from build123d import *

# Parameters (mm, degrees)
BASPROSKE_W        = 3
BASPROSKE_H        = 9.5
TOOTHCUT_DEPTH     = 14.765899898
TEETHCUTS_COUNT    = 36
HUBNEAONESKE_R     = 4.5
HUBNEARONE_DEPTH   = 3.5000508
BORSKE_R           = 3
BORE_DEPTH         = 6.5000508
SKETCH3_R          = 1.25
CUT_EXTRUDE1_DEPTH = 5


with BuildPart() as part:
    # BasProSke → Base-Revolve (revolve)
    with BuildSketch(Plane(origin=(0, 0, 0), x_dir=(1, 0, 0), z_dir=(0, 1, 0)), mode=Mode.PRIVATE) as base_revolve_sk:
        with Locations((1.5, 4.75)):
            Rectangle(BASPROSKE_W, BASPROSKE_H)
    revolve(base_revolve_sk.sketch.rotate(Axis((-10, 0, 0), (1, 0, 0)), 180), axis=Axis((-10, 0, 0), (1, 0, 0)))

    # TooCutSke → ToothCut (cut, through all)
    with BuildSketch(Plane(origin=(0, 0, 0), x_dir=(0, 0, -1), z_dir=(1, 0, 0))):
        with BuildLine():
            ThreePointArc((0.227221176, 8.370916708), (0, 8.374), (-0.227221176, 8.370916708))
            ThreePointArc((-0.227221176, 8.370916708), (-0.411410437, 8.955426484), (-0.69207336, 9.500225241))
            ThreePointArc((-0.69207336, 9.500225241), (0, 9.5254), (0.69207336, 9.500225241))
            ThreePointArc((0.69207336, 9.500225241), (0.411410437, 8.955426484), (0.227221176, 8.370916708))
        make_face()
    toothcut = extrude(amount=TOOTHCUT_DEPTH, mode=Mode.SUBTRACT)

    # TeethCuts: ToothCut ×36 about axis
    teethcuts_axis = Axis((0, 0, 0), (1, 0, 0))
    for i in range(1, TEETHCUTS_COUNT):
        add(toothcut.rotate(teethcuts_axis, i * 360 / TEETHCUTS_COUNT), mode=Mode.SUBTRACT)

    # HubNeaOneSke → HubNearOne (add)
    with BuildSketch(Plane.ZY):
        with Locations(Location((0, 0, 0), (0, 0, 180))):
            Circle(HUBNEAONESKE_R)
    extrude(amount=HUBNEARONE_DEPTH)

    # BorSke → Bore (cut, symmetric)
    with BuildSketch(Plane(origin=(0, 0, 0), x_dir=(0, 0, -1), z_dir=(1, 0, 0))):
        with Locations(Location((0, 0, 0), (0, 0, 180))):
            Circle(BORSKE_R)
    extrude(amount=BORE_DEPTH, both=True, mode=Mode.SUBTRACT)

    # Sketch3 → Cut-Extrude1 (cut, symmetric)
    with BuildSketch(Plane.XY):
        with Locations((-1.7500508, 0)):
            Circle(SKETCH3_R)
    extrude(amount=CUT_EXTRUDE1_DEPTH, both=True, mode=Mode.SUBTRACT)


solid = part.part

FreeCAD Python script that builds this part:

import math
import FreeCAD as App
import Part
import Sketcher
from FreeCAD import Vector
Q = App.Units.Quantity

doc = App.newDocument("Part")
params = doc.addObject("Spreadsheet::Sheet", "Params")
for row, (alias, value) in enumerate([
    ("sketch1_width", "3 mm"),
    ("sketch1_height", "9.5 mm"),
    ("revolution_angle", "360 deg"),
    ("sketch2_radius", "3.6 mm"),
    ("sketch3_diameter", "9 mm"),
    ("pad1_length", "3.500051 mm"),
    ("sketch4_diameter", "6 mm"),
    ("pocket2_length", "13.000102 mm"),
    ("sketch5_diameter", "2.5 mm"),
    ("pocket3_length", "10 mm"),
], start=1):
    params.set(f"A{row}", alias)
    params.set(f"B{row}", "=" + value)
    params.setAlias(f"B{row}", alias)

body = doc.addObject("PartDesign::Body", "Body")

# Sketch on XZ plane
sketch1 = body.newObject("Sketcher::SketchObject", "Sketch")
sketch1.AttachmentSupport = (doc.getObject("XZ_Plane"), [""])
sketch1.MapMode = "FlatFace"
sketch1.addGeometry([
    Part.LineSegment(Vector(0, -9.5, 0), Vector(0, 0, 0)),
    Part.LineSegment(Vector(0, 0, 0), Vector(3, 0, 0)),
    Part.LineSegment(Vector(3, 0, 0), Vector(3, -9.5, 0)),
    Part.LineSegment(Vector(3, -9.5, 0), Vector(0, -9.5, 0)),
], False)
sketch1.addConstraint([
    Sketcher.Constraint("Coincident", 0, 2, 1, 1),
    Sketcher.Constraint("Coincident", 1, 2, 2, 1),
    Sketcher.Constraint("Coincident", 2, 2, 3, 1),
    Sketcher.Constraint("Coincident", 3, 2, 0, 1),
    Sketcher.Constraint("Vertical", 0),
    Sketcher.Constraint("Horizontal", 1),
    Sketcher.Constraint("Vertical", 2),
    Sketcher.Constraint("Horizontal", 3),
    Sketcher.Constraint("Coincident", 0, 2, -1, 1),
    Sketcher.Constraint("DistanceX", 1, 1, 1, 2, Q("3 mm")),
    Sketcher.Constraint("DistanceY", 0, 1, 0, 2, Q("9.5 mm")),
])
sketch1.setExpression("Constraints[9]", "Params.sketch1_width")
sketch1.setExpression("Constraints[10]", "Params.sketch1_height")
revolution = body.newObject("PartDesign::Revolution", "Revolution")
revolution.Profile = sketch1
revolution.ReferenceAxis = (sketch1, ["H_Axis"])
revolution.setExpression("Angle", "Params.revolution_angle")

# Sketch on YZ plane
sketch2 = body.newObject("Sketcher::SketchObject", "Sketch001")
sketch2.AttachmentSupport = (doc.getObject("YZ_Plane"), [""])
sketch2.MapMode = "FlatFace"
sketch2.addGeometry([
    Part.ArcOfCircle(Part.Circle(Vector(0, 0, 0), Vector(0, 0, 1), 8.37), math.radians(-1.55), math.radians(1.55)),
    Part.ArcOfCircle(Part.Circle(Vector(7.59, -3.74, 0), Vector(0, 0, 1), 3.6), math.radians(57.86), math.radians(77.39)),
    Part.ArcOfCircle(Part.Circle(Vector(0, 0, 0), Vector(0, 0, 1), 9.53), math.radians(-4.17), math.radians(4.17)),
    Part.ArcOfCircle(Part.Circle(Vector(7.59, 3.74, 0), Vector(0, 0, 1), 3.6), math.radians(-77.39), math.radians(-57.86)),
], False)
sketch2.addConstraint([
    Sketcher.Constraint("Coincident", 0, 1, 1, 2),
    Sketcher.Constraint("Coincident", 1, 1, 2, 1),
    Sketcher.Constraint("Coincident", 2, 2, 3, 2),
    Sketcher.Constraint("Coincident", 3, 1, 0, 2),
    Sketcher.Constraint("Coincident", 0, 3, -1, 1),
    Sketcher.Constraint("Coincident", 2, 3, -1, 1),
    Sketcher.Constraint("Equal", 1, 3),
    Sketcher.Constraint("Symmetric", 1, 3, 3, 3, -1),
    Sketcher.Constraint("Radius", 1, Q("3.6 mm")),
    Sketcher.Constraint("Radius", 0, Q("8.373999 mm")),
    Sketcher.Constraint("Radius", 2, Q("9.5254 mm")),
    Sketcher.Constraint("DistanceX", 1, 3, 1, 1, Q("1.915102 mm")),
    Sketcher.Constraint("DistanceY", 0, 1, -1, 1, Q("0.227221 mm")),
])
sketch2.setExpression("Constraints[8]", "Params.sketch2_radius")
pocket1 = body.newObject("PartDesign::Pocket", "Pocket")
pocket1.Profile = sketch2
pocket1.Type = "ThroughAll"
pocket1.Reversed = True
doc.recompute()

polarpattern = body.newObject("PartDesign::PolarPattern", "PolarPattern")
polarpattern.Originals = [pocket1]
polarpattern.Axis = (doc.getObject("X_Axis"), [""])
polarpattern.Angle = 360
polarpattern.Occurrences = 36
body.Tip = polarpattern

# Sketch on YZ plane
sketch3 = body.newObject("Sketcher::SketchObject", "Sketch002")
sketch3.AttachmentSupport = (doc.getObject("YZ_Plane"), [""])
sketch3.MapMode = "FlatFace"
sketch3.addGeometry(Part.Circle(Vector(0, 0, 0), Vector(0, 0, 1), 4.5), False)
sketch3.addConstraint([
    Sketcher.Constraint("Coincident", 0, 3, -1, 1),
    Sketcher.Constraint("Diameter", 0, Q("9 mm")),
])
sketch3.setExpression("Constraints[1]", "Params.sketch3_diameter")
pad1 = body.newObject("PartDesign::Pad", "Pad")
pad1.Profile = sketch3
pad1.setExpression("Length", "Params.pad1_length")
pad1.Reversed = True

# Sketch on YZ plane
sketch4 = body.newObject("Sketcher::SketchObject", "Sketch003")
sketch4.AttachmentSupport = (doc.getObject("YZ_Plane"), [""])
sketch4.MapMode = "FlatFace"
sketch4.addGeometry(Part.Circle(Vector(0, 0, 0), Vector(0, 0, 1), 3), False)
sketch4.addConstraint([
    Sketcher.Constraint("Coincident", 0, 3, -1, 1),
    Sketcher.Constraint("Diameter", 0, Q("6 mm")),
])
sketch4.setExpression("Constraints[1]", "Params.sketch4_diameter")
pocket2 = body.newObject("PartDesign::Pocket", "Pocket001")
pocket2.Profile = sketch4
pocket2.setExpression("Length", "Params.pocket2_length")
pocket2.Midplane = True

# Sketch on XY plane
sketch5 = body.newObject("Sketcher::SketchObject", "Sketch004")
sketch5.AttachmentSupport = (doc.getObject("XY_Plane"), [""])
sketch5.MapMode = "FlatFace"
sketch5.addGeometry(Part.Circle(Vector(-1.8, 0, 0), Vector(0, 0, 1), 1.2), False)
sketch5.addConstraint([
    Sketcher.Constraint("PointOnObject", 0, 3, -1),
    Sketcher.Constraint("Diameter", 0, Q("2.5 mm")),
    Sketcher.Constraint("DistanceX", 0, 3, -1, 1, Q("1.750051 mm")),
])
sketch5.setExpression("Constraints[1]", "Params.sketch5_diameter")
pocket3 = body.newObject("PartDesign::Pocket", "Pocket002")
pocket3.Profile = sketch5
pocket3.setExpression("Length", "Params.pocket3_length")
pocket3.Midplane = True

doc.recompute()
